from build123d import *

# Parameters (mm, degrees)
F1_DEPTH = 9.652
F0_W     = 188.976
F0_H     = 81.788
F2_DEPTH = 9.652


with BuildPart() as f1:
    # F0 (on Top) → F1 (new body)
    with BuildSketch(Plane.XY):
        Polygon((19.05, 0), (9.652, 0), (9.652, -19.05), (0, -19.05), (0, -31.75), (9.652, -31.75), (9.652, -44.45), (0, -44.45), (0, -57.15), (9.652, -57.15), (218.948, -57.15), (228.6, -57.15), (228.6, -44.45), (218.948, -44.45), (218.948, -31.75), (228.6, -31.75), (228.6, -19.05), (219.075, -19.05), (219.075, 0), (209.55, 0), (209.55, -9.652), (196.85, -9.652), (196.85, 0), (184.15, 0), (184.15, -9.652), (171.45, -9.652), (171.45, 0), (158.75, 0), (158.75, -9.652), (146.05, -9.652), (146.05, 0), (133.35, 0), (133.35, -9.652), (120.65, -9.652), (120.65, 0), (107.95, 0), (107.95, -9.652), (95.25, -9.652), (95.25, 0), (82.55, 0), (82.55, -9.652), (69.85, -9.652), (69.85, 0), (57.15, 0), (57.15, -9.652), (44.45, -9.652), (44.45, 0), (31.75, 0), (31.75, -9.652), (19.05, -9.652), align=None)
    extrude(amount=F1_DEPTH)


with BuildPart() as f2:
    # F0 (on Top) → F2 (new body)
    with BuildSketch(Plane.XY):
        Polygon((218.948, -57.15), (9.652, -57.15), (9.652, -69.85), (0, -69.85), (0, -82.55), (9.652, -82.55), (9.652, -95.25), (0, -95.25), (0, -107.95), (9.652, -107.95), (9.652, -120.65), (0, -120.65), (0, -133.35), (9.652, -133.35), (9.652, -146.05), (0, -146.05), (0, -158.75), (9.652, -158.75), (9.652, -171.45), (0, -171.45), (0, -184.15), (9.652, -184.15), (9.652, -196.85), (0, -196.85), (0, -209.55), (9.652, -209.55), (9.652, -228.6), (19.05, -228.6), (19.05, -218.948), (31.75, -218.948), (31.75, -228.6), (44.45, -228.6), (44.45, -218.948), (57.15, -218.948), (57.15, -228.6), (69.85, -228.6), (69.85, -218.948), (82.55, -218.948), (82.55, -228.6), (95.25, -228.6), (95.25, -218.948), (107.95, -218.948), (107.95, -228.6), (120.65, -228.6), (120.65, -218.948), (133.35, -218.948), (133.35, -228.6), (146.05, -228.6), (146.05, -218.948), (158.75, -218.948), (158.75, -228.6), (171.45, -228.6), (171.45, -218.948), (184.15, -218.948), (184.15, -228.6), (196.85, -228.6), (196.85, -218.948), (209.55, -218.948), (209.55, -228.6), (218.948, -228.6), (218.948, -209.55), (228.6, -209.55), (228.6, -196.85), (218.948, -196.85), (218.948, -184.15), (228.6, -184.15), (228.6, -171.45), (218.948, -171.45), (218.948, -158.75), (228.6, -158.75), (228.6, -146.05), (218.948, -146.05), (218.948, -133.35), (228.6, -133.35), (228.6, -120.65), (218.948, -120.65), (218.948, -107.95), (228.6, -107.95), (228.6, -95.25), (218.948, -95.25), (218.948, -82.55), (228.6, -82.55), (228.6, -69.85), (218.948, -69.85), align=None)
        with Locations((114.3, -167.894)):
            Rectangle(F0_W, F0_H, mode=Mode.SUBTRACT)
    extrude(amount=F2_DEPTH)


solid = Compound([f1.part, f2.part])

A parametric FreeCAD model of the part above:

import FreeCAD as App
import Part
import Sketcher
Q = App.Units.Quantity

doc = App.newDocument("Part")
params = doc.addObject("Spreadsheet::Sheet", "Params")
for row, (alias, value) in enumerate([
    ("sketch1_width", "9 in"),
    ("sketch1_width2", "0.5 in"),
    ("sketch1_width3", "0.37 in"),
    ("sketch1_width4", "0.38 in"),
    ("sketch1_height", "0.75 in"),
    ("pad1_length", "0.38 in"),
    ("sketch2_width", "0.5 in"),
    ("sketch2_width2", "8.24 in"),
    ("sketch2_width3", "7.44 in"),
    ("sketch2_height", "0.75 in"),
    ("sketch2_height2", "3.22 in"),
    ("pad2_length", "0.38 in"),
], start=1):
    params.set(f"A{row}", alias)
    params.set(f"B{row}", "=" + value)
    params.setAlias(f"B{row}", alias)

body = doc.addObject("PartDesign::Body", "Body")

# Sketch on XY plane
sketch1 = body.newObject("Sketcher::SketchObject", "Sketch")
sketch1.AttachmentSupport = (doc.getObject("XY_Plane"), [""])
sketch1.MapMode = "FlatFace"
sketch1.addGeometry(Part.LineSegment(App.Vector(19, 0, 0), App.Vector(10, 0, 0)), False)
sketch1.addGeometry(Part.LineSegment(App.Vector(10, 0, 0), App.Vector(10, -19, 0)), False)
sketch1.addGeometry(Part.LineSegment(App.Vector(10, -19, 0), App.Vector(0, -19, 0)), False)
sketch1.addGeometry(Part.LineSegment(App.Vector(0, -19, 0), App.Vector(0, -32, 0)), False)
sketch1.addGeometry(Part.LineSegment(App.Vector(0, -32, 0), App.Vector(10, -32, 0)), False)
sketch1.addGeometry(Part.LineSegment(App.Vector(10, -32, 0), App.Vector(10, -44, 0)), False)
sketch1.addGeometry(Part.LineSegment(App.Vector(10, -44, 0), App.Vector(0, -44, 0)), False)
sketch1.addGeometry(Part.LineSegment(App.Vector(0, -44, 0), App.Vector(0, -57, 0)), False)
sketch1.addGeometry(Part.LineSegment(App.Vector(0, -57, 0), App.Vector(229, -57, 0)), False)
sketch1.addGeometry(Part.LineSegment(App.Vector(229, -57, 0), App.Vector(229, -44, 0)), False)
sketch1.addGeometry(Part.LineSegment(App.Vector(229, -44, 0), App.Vector(219, -44, 0)), False)
sketch1.addGeometry(Part.LineSegment(App.Vector(219, -44, 0), App.Vector(219, -32, 0)), False)
sketch1.addGeometry(Part.LineSegment(App.Vector(219, -32, 0), App.Vector(229, -32, 0)), False)
sketch1.addGeometry(Part.LineSegment(App.Vector(229, -32, 0), App.Vector(229, -19, 0)), False)
sketch1.addGeometry(Part.LineSegment(App.Vector(229, -19, 0), App.Vector(219, -19, 0)), False)
sketch1.addGeometry(Part.LineSegment(App.Vector(219, -19, 0), App.Vector(219, 0, 0)), False)
sketch1.addGeometry(Part.LineSegment(App.Vector(219, 0, 0), App.Vector(210, 0, 0)), False)
sketch1.addGeometry(Part.LineSegment(App.Vector(210, 0, 0), App.Vector(210, -10, 0)), False)
sketch1.addGeometry(Part.LineSegment(App.Vector(210, -10, 0), App.Vector(197, -10, 0)), False)
sketch1.addGeometry(Part.LineSegment(App.Vector(197, -10, 0), App.Vector(197, 0, 0)), False)
sketch1.addGeometry(Part.LineSegment(App.Vector(197, 0, 0), App.Vector(184, 0, 0)), False)
sketch1.addGeometry(Part.LineSegment(App.Vector(184, 0, 0), App.Vector(184, -10, 0)), False)
sketch1.addGeometry(Part.LineSegment(App.Vector(184, -10, 0), App.Vector(171, -10, 0)), False)
sketch1.addGeometry(Part.LineSegment(App.Vector(171, -10, 0), App.Vector(171, 0, 0)), False)
sketch1.addGeometry(Part.LineSegment(App.Vector(171, 0, 0), App.Vector(159, 0, 0)), False)
sketch1.addGeometry(Part.LineSegment(App.Vector(159, 0, 0), App.Vector(159, -10, 0)), False)
sketch1.addGeometry(Part.LineSegment(App.Vector(159, -10, 0), App.Vector(146, -10, 0)), False)
sketch1.addGeometry(Part.LineSegment(App.Vector(146, -10, 0), App.Vector(146, 0, 0)), False)
sketch1.addGeometry(Part.LineSegment(App.Vector(146, 0, 0), App.Vector(133, 0, 0)), False)
sketch1.addGeometry(Part.LineSegment(App.Vector(133, 0, 0), App.Vector(133, -10, 0)), False)
sketch1.addGeometry(Part.LineSegment(App.Vector(133, -10, 0), App.Vector(121, -10, 0)), False)
sketch1.addGeometry(Part.LineSegment(App.Vector(121, -10, 0), App.Vector(121, 0, 0)), False)
sketch1.addGeometry(Part.LineSegment(App.Vector(121, 0, 0), App.Vector(108, 0, 0)), False)
sketch1.addGeometry(Part.LineSegment(App.Vector(108, 0, 0), App.Vector(108, -10, 0)), False)
sketch1.addGeometry(Part.LineSegment(App.Vector(108, -10, 0), App.Vector(95, -10, 0)), False)
sketch1.addGeometry(Part.LineSegment(App.Vector(95, -10, 0), App.Vector(95, 0, 0)), False)
sketch1.addGeometry(Part.LineSegment(App.Vector(95, 0, 0), App.Vector(83, 0, 0)), False)
sketch1.addGeometry(Part.LineSegment(App.Vector(83, 0, 0), App.Vector(83, -10, 0)), False)
sketch1.addGeometry(Part.LineSegment(App.Vector(83, -10, 0), App.Vector(70, -10, 0)), False)
sketch1.addGeometry(Part.LineSegment(App.Vector(70, -10, 0), App.Vector(70, 0, 0)), False)
sketch1.addGeometry(Part.LineSegment(App.Vector(70, 0, 0), App.Vector(57, 0, 0)), False)
sketch1.addGeometry(Part.LineSegment(App.Vector(57, 0, 0), App.Vector(57, -10, 0)), False)
sketch1.addGeometry(Part.LineSegment(App.Vector(57, -10, 0), App.Vector(44, -10, 0)), False)
sketch1.addGeometry(Part.LineSegment(App.Vector(44, -10, 0), App.Vector(44, 0, 0)), False)
sketch1.addGeometry(Part.LineSegment(App.Vector(44, 0, 0), App.Vector(32, 0, 0)), False)
sketch1.addGeometry(Part.LineSegment(App.Vector(32, 0, 0), App.Vector(32, -10, 0)), False)
sketch1.addGeometry(Part.LineSegment(App.Vector(32, -10, 0), App.Vector(19, -10, 0)), False)
sketch1.addGeometry(Part.LineSegment(App.Vector(19, -10, 0), App.Vector(19, 0, 0)), False)
sketch1.addConstraint(Sketcher.Constraint("Coincident", 0, 2, 1, 1))
sketch1.addConstraint(Sketcher.Constraint("Coincident", 1, 2, 2, 1))
sketch1.addConstraint(Sketcher.Constraint("Coincident", 2, 2, 3, 1))
sketch1.addConstraint(Sketcher.Constraint("Coincident", 3, 2, 4, 1))
sketch1.addConstraint(Sketcher.Constraint("Coincident", 4, 2, 5, 1))
sketch1.addConstraint(Sketcher.Constraint("Coincident", 5, 2, 6, 1))
sketch1.addConstraint(Sketcher.Constraint("Coincident", 6, 2, 7, 1))
sketch1.addConstraint(Sketcher.Constraint("Coincident", 7, 2, 8, 1))
sketch1.addConstraint(Sketcher.Constraint("Coincident", 8, 2, 9, 1))
sketch1.addConstraint(Sketcher.Constraint("Coincident", 9, 2, 10, 1))
sketch1.addConstraint(Sketcher.Constraint("Coincident", 10, 2, 11, 1))
sketch1.addConstraint(Sketcher.Constraint("Coincident", 11, 2, 12, 1))
sketch1.addConstraint(Sketcher.Constraint("Coincident", 12, 2, 13, 1))
sketch1.addConstraint(Sketcher.Constraint("Coincident", 13, 2, 14, 1))
sketch1.addConstraint(Sketcher.Constraint("Coincident", 14, 2, 15, 1))
sketch1.addConstraint(Sketcher.Constraint("Coincident", 15, 2, 16, 1))
sketch1.addConstraint(Sketcher.Constraint("Coincident", 16, 2, 17, 1))
sketch1.addConstraint(Sketcher.Constraint("Coincident", 17, 2, 18, 1))
sketch1.addConstraint(Sketcher.Constraint("Coincident", 18, 2, 19, 1))
sketch1.addConstraint(Sketcher.Constraint("Coincident", 19, 2, 20, 1))
sketch1.addConstraint(Sketcher.Constraint("Coincident", 20, 2, 21, 1))
sketch1.addConstraint(Sketcher.Constraint("Coincident", 21, 2, 22, 1))
sketch1.addConstraint(Sketcher.Constraint("Coincident", 22, 2, 23, 1))
sketch1.addConstraint(Sketcher.Constraint("Coincident", 23, 2, 24, 1))
sketch1.addConstraint(Sketcher.Constraint("Coincident", 24, 2, 25, 1))
sketch1.addConstraint(Sketcher.Constraint("Coincident", 25, 2, 26, 1))
sketch1.addConstraint(Sketcher.Constraint("Coincident", 26, 2, 27, 1))
sketch1.addConstraint(Sketcher.Constraint("Coincident", 27, 2, 28, 1))
sketch1.addConstraint(Sketcher.Constraint("Coincident", 28, 2, 29, 1))
sketch1.addConstraint(Sketcher.Constraint("Coincident", 29, 2, 30, 1))
sketch1.addConstraint(Sketcher.Constraint("Coincident", 30, 2, 31, 1))
sketch1.addConstraint(Sketcher.Constraint("Coincident", 31, 2, 32, 1))
sketch1.addConstraint(Sketcher.Constraint("Coincident", 32, 2, 33, 1))
sketch1.addConstraint(Sketcher.Constraint("Coincident", 33, 2, 34, 1))
sketch1.addConstraint(Sketcher.Constraint("Coincident", 34, 2, 35, 1))
sketch1.addConstraint(Sketcher.Constraint("Coincident", 35, 2, 36, 1))
sketch1.addConstraint(Sketcher.Constraint("Coincident", 36, 2, 37, 1))
sketch1.addConstraint(Sketcher.Constraint("Coincident", 37, 2, 38, 1))
sketch1.addConstraint(Sketcher.Constraint("Coincident", 38, 2, 39, 1))
sketch1.addConstraint(Sketcher.Constraint("Coincident", 39, 2, 40, 1))
sketch1.addConstraint(Sketcher.Constraint("Coincident", 40, 2, 41, 1))
sketch1.addConstraint(Sketcher.Constraint("Coincident", 41, 2, 42, 1))
sketch1.addConstraint(Sketcher.Constraint("Coincident", 42, 2, 43, 1))
sketch1.addConstraint(Sketcher.Constraint("Coincident", 43, 2, 44, 1))
sketch1.addConstraint(Sketcher.Constraint("Coincident", 44, 2, 45, 1))
sketch1.addConstraint(Sketcher.Constraint("Coincident", 45, 2, 46, 1))
sketch1.addConstraint(Sketcher.Constraint("Coincident", 46, 2, 47, 1))
sketch1.addConstraint(Sketcher.Constraint("Coincident", 47, 2, 0, 1))
sketch1.addConstraint(Sketcher.Constraint("Horizontal", 0))
sketch1.addConstraint(Sketcher.Constraint("Vertical", 1))
sketch1.addConstraint(Sketcher.Constraint("Horizontal", 2))
sketch1.addConstraint(Sketcher.Constraint("Vertical", 3))
sketch1.addConstraint(Sketcher.Constraint("Horizontal", 4))
sketch1.addConstraint(Sketcher.Constraint("Vertical", 5))
sketch1.addConstraint(Sketcher.Constraint("Horizontal", 6))
sketch1.addConstraint(Sketcher.Constraint("Vertical", 7))
sketch1.addConstraint(Sketcher.Constraint("Horizontal", 8))
sketch1.addConstraint(Sketcher.Constraint("Vertical", 9))
sketch1.addConstraint(Sketcher.Constraint("Horizontal", 10))
sketch1.addConstraint(Sketcher.Constraint("Vertical", 11))
sketch1.addConstraint(Sketcher.Constraint("Horizontal", 12))
sketch1.addConstraint(Sketcher.Constraint("Vertical", 13))
sketch1.addConstraint(Sketcher.Constraint("Horizontal", 14))
sketch1.addConstraint(Sketcher.Constraint("Vertical", 15))
sketch1.addConstraint(Sketcher.Constraint("Horizontal", 16))
sketch1.addConstraint(Sketcher.Constraint("Vertical", 17))
sketch1.addConstraint(Sketcher.Constraint("Horizontal", 18))
sketch1.addConstraint(Sketcher.Constraint("Vertical", 19))
sketch1.addConstraint(Sketcher.Constraint("Horizontal", 20))
sketch1.addConstraint(Sketcher.Constraint("Vertical", 21))
sketch1.addConstraint(Sketcher.Constraint("Horizontal", 22))
sketch1.addConstraint(Sketcher.Constraint("Vertical", 23))
sketch1.addConstraint(Sketcher.Constraint("Horizontal", 24))
sketch1.addConstraint(Sketcher.Constraint("Vertical", 25))
sketch1.addConstraint(Sketcher.Constraint("Horizontal", 26))
sketch1.addConstraint(Sketcher.Constraint("Vertical", 27))
sketch1.addConstraint(Sketcher.Constraint("Horizontal", 28))
sketch1.addConstraint(Sketcher.Constraint("Vertical", 29))
sketch1.addConstraint(Sketcher.Constraint("Horizontal", 30))
sketch1.addConstraint(Sketcher.Constraint("Vertical", 31))
sketch1.addConstraint(Sketcher.Constraint("Horizontal", 32))
sketch1.addConstraint(Sketcher.Constraint("Vertical", 33))
sketch1.addConstraint(Sketcher.Constraint("Horizontal", 34))
sketch1.addConstraint(Sketcher.Constraint("Vertical", 35))
sketch1.addConstraint(Sketcher.Constraint("Horizontal", 36))
sketch1.addConstraint(Sketcher.Constraint("Vertical", 37))
sketch1.addConstraint(Sketcher.Constraint("Horizontal", 38))
sketch1.addConstraint(Sketcher.Constraint("Vertical", 39))
sketch1.addConstraint(Sketcher.Constraint("Horizontal", 40))
sketch1.addConstraint(Sketcher.Constraint("Vertical", 41))
sketch1.addConstraint(Sketcher.Constraint("Horizontal", 42))
sketch1.addConstraint(Sketcher.Constraint("Vertical", 43))
sketch1.addConstraint(Sketcher.Constraint("Horizontal", 44))
sketch1.addConstraint(Sketcher.Constraint("Vertical", 45))
sketch1.addConstraint(Sketcher.Constraint("Horizontal", 46))
sketch1.addConstraint(Sketcher.Constraint("Vertical", 47))
sketch1.addConstraint(Sketcher.Constraint("PointOnObject", 0, 2, -1))
sketch1.addConstraint(Sketcher.Constraint("PointOnObject", 2, 2, -2))
sketch1.addConstraint(Sketcher.Constraint("PointOnObject", 6, 2, -2))
sketch1.addConstraint(Sketcher.Constraint("PointOnObject", 15, 2, -1))
sketch1.addConstraint(Sketcher.Constraint("PointOnObject", 19, 2, -1))
sketch1.addConstraint(Sketcher.Constraint("PointOnObject", 23, 2, -1))
sketch1.addConstraint(Sketcher.Constraint("PointOnObject", 27, 2, -1))
sketch1.addConstraint(Sketcher.Constraint("PointOnObject", 31, 2, -1))
sketch1.addConstraint(Sketcher.Constraint("PointOnObject", 35, 2, -1))
sketch1.addConstraint(Sketcher.Constraint("PointOnObject", 39, 2, -1))
sketch1.addConstraint(Sketcher.Constraint("PointOnObject", 43, 2, -1))
sketch1.addConstraint(Sketcher.Constraint("Horizontal", 6, 2, 9, 2))
sketch1.addConstraint(Sketcher.Constraint("Horizontal", 4, 2, 11, 2))
sketch1.addConstraint(Sketcher.Constraint("Horizontal", 2, 2, 13, 2))
sketch1.addConstraint(Sketcher.Constraint("Horizontal", 18, 2, 21, 2))
sketch1.addConstraint(Sketcher.Constraint("Horizontal", 22, 2, 25, 2))
sketch1.addConstraint(Sketcher.Constraint("Horizontal", 26, 2, 29, 2))
sketch1.addConstraint(Sketcher.Constraint("Horizontal", 30, 2, 33, 2))
sketch1.addConstraint(Sketcher.Constraint("Horizontal", 34, 2, 37, 2))
sketch1.addConstraint(Sketcher.Constraint("Horizontal", 38, 2, 41, 2))
sketch1.addConstraint(Sketcher.Constraint("Horizontal", 42, 2, 45, 2))
sketch1.addConstraint(Sketcher.Constraint("Vertical", 1, 2, 4, 2))
sketch1.addConstraint(Sketcher.Constraint("Vertical", 9, 2, 12, 2))
sketch1.addConstraint(Sketcher.Constraint("Equal", 6, 10))
sketch1.addConstraint(Sketcher.Constraint("Equal", 14, 16))
sketch1.addConstraint(Sketcher.Constraint("Equal", 18, 20))
sketch1.addConstraint(Sketcher.Constraint("Equal", 20, 22))
sketch1.addConstraint(Sketcher.Constraint("Equal", 22, 24))
sketch1.addConstraint(Sketcher.Constraint("Equal", 24, 26))
sketch1.addConstraint(Sketcher.Constraint("Equal", 26, 28))
sketch1.addConstraint(Sketcher.Constraint("Equal", 28, 30))
sketch1.addConstraint(Sketcher.Constraint("Equal", 30, 32))
sketch1.addConstraint(Sketcher.Constraint("Equal", 32, 34))
sketch1.addConstraint(Sketcher.Constraint("Equal", 34, 36))
sketch1.addConstraint(Sketcher.Constraint("Equal", 36, 38))
sketch1.addConstraint(Sketcher.Constraint("Equal", 38, 40))
sketch1.addConstraint(Sketcher.Constraint("Equal", 40, 42))
sketch1.addConstraint(Sketcher.Constraint("Equal", 42, 44))
sketch1.addConstraint(Sketcher.Constraint("Equal", 44, 46))
sketch1.addConstraint(Sketcher.Constraint("Equal", 46, 3))
sketch1.addConstraint(Sketcher.Constraint("Equal", 3, 5))
sketch1.addConstraint(Sketcher.Constraint("Equal", 5, 7))
sketch1.addConstraint(Sketcher.Constraint("Equal", 12, 17))
sketch1.addConstraint(Sketcher.Constraint("DistanceX", 8, 1, 8, 2, Q("9 in")))
sketch1.addConstraint(Sketcher.Constraint("DistanceX", 18, 2, 18, 1, Q("0.5 in")))
sketch1.addConstraint(Sketcher.Constraint("DistanceX", 0, 2, 0, 1, Q("0.37 in")))
sketch1.addConstraint(Sketcher.Constraint("DistanceX", 2, 2, 2, 1, Q("0.38 in")))
sketch1.addConstraint(Sketcher.Constraint("DistanceY", 1, 2, 1, 1, Q("0.75 in")))
sketch1.setExpression("Constraints[139]", "Params.sketch1_width")
sketch1.setExpression("Constraints[140]", "Params.sketch1_width2")
sketch1.setExpression("Constraints[141]", "Params.sketch1_width3")
sketch1.setExpression("Constraints[142]", "Params.sketch1_width4")
sketch1.setExpression("Constraints[143]", "Params.sketch1_height")
pad1 = body.newObject("PartDesign::Pad", "Pad")
pad1.Profile = sketch1
pad1.setExpression("Length", "Params.pad1_length")
body2 = doc.addObject("PartDesign::Body", "Body001")

# Sketch on XY plane
sketch2 = body2.newObject("Sketcher::SketchObject", "Sketch001")
sketch2.AttachmentSupport = (doc.getObject("XY_Plane001"), [""])
sketch2.MapMode = "FlatFace"
sketch2.addGeometry(Part.LineSegment(App.Vector(219, -57, 0), App.Vector(10, -57, 0)), False)
sketch2.addGeometry(Part.LineSegment(App.Vector(10, -57, 0), App.Vector(10, -70, 0)), False)
sketch2.addGeometry(Part.LineSegment(App.Vector(10, -70, 0), App.Vector(0, -70, 0)), False)
sketch2.addGeometry(Part.LineSegment(App.Vector(0, -70, 0), App.Vector(0, -83, 0)), False)
sketch2.addGeometry(Part.LineSegment(App.Vector(0, -83, 0), App.Vector(10, -83, 0)), False)
sketch2.addGeometry(Part.LineSegment(App.Vector(10, -83, 0), App.Vector(10, -95, 0)), False)
sketch2.addGeometry(Part.LineSegment(App.Vector(10, -95, 0), App.Vector(0, -95, 0)), False)
sketch2.addGeometry(Part.LineSegment(App.Vector(0, -95, 0), App.Vector(0, -108, 0)), False)
sketch2.addGeometry(Part.LineSegment(App.Vector(0, -108, 0), App.Vector(10, -108, 0)), False)
sketch2.addGeometry(Part.LineSegment(App.Vector(10, -108, 0), App.Vector(10, -121, 0)), False)
sketch2.addGeometry(Part.LineSegment(App.Vector(10, -121, 0), App.Vector(0, -121, 0)), False)
sketch2.addGeometry(Part.LineSegment(App.Vector(0, -121, 0), App.Vector(0, -133, 0)), False)
sketch2.addGeometry(Part.LineSegment(App.Vector(0, -133, 0), App.Vector(10, -133, 0)), False)
sketch2.addGeometry(Part.LineSegment(App.Vector(10, -133, 0), App.Vector(10, -146, 0)), False)
sketch2.addGeometry(Part.LineSegment(App.Vector(10, -146, 0), App.Vector(0, -146, 0)), False)
sketch2.addGeometry(Part.LineSegment(App.Vector(0, -146, 0), App.Vector(0, -159, 0)), False)
sketch2.addGeometry(Part.LineSegment(App.Vector(0, -159, 0), App.Vector(10, -159, 0)), False)
sketch2.addGeometry(Part.LineSegment(App.Vector(10, -159, 0), App.Vector(10, -171, 0)), False)
sketch2.addGeometry(Part.LineSegment(App.Vector(10, -171, 0), App.Vector(0, -171, 0)), False)
sketch2.addGeometry(Part.LineSegment(App.Vector(0, -171, 0), App.Vector(0, -184, 0)), False)
sketch2.addGeometry(Part.LineSegment(App.Vector(0, -184, 0), App.Vector(10, -184, 0)), False)
sketch2.addGeometry(Part.LineSegment(App.Vector(10, -184, 0), App.Vector(10, -197, 0)), False)
sketch2.addGeometry(Part.LineSegment(App.Vector(10, -197, 0), App.Vector(0, -197, 0)), False)
sketch2.addGeometry(Part.LineSegment(App.Vector(0, -197, 0), App.Vector(0, -210, 0)), False)
sketch2.addGeometry(Part.LineSegment(App.Vector(0, -210, 0), App.Vector(10, -210, 0)), False)
sketch2.addGeometry(Part.LineSegment(App.Vector(10, -210, 0), App.Vector(10, -229, 0)), False)
sketch2.addGeometry(Part.LineSegment(App.Vector(10, -229, 0), App.Vector(19, -229, 0)), False)
sketch2.addGeometry(Part.LineSegment(App.Vector(19, -229, 0), App.Vector(19, -219, 0)), False)
sketch2.addGeometry(Part.LineSegment(App.Vector(19, -219, 0), App.Vector(32, -219, 0)), False)
sketch2.addGeometry(Part.LineSegment(App.Vector(32, -219, 0), App.Vector(32, -229, 0)), False)
sketch2.addGeometry(Part.LineSegment(App.Vector(32, -229, 0), App.Vector(44, -229, 0)), False)
sketch2.addGeometry(Part.LineSegment(App.Vector(44, -229, 0), App.Vector(44, -219, 0)), False)
sketch2.addGeometry(Part.LineSegment(App.Vector(44, -219, 0), App.Vector(57, -219, 0)), False)
sketch2.addGeometry(Part.LineSegment(App.Vector(57, -219, 0), App.Vector(57, -229, 0)), False)
sketch2.addGeometry(Part.LineSegment(App.Vector(57, -229, 0), App.Vector(70, -229, 0)), False)
sketch2.addGeometry(Part.LineSegment(App.Vector(70, -229, 0), App.Vector(70, -219, 0)), False)
sketch2.addGeometry(Part.LineSegment(App.Vector(70, -219, 0), App.Vector(83, -219, 0)), False)
sketch2.addGeometry(Part.LineSegment(App.Vector(83, -219, 0), App.Vector(83, -229, 0)), False)
sketch2.addGeometry(Part.LineSegment(App.Vector(83, -229, 0), App.Vector(95, -229, 0)), False)
sketch2.addGeometry(Part.LineSegment(App.Vector(95, -229, 0), App.Vector(95, -219, 0)), False)
sketch2.addGeometry(Part.LineSegment(App.Vector(95, -219, 0), App.Vector(108, -219, 0)), False)
sketch2.addGeometry(Part.LineSegment(App.Vector(108, -219, 0), App.Vector(108, -229, 0)), False)
sketch2.addGeometry(Part.LineSegment(App.Vector(108, -229, 0), App.Vector(121, -229, 0)), False)
sketch2.addGeometry(Part.LineSegment(App.Vector(121, -229, 0), App.Vector(121, -219, 0)), False)
sketch2.addGeometry(Part.LineSegment(App.Vector(121, -219, 0), App.Vector(133, -219, 0)), False)
sketch2.addGeometry(Part.LineSegment(App.Vector(133, -219, 0), App.Vector(133, -229, 0)), False)
sketch2.addGeometry(Part.LineSegment(App.Vector(133, -229, 0), App.Vector(146, -229, 0)), False)
sketch2.addGeometry(Part.LineSegment(App.Vector(146, -229, 0), App.Vector(146, -219, 0)), False)
sketch2.addGeometry(Part.LineSegment(App.Vector(146, -219, 0), App.Vector(159, -219, 0)), False)
sketch2.addGeometry(Part.LineSegment(App.Vector(159, -219, 0), App.Vector(159, -229, 0)), False)
sketch2.addGeometry(Part.LineSegment(App.Vector(159, -229, 0), App.Vector(171, -229, 0)), False)
sketch2.addGeometry(Part.LineSegment(App.Vector(171, -229, 0), App.Vector(171, -219, 0)), False)
sketch2.addGeometry(Part.LineSegment(App.Vector(171, -219, 0), App.Vector(184, -219, 0)), False)
sketch2.addGeometry(Part.LineSegment(App.Vector(184, -219, 0), App.Vector(184, -229, 0)), False)
sketch2.addGeometry(Part.LineSegment(App.Vector(184, -229, 0), App.Vector(197, -229, 0)), False)
sketch2.addGeometry(Part.LineSegment(App.Vector(197, -229, 0), App.Vector(197, -219, 0)), False)
sketch2.addGeometry(Part.LineSegment(App.Vector(197, -219, 0), App.Vector(210, -219, 0)), False)
sketch2.addGeometry(Part.LineSegment(App.Vector(210, -219, 0), App.Vector(210, -229, 0)), False)
sketch2.addGeometry(Part.LineSegment(App.Vector(210, -229, 0), App.Vector(219, -229, 0)), False)
sketch2.addGeometry(Part.LineSegment(App.Vector(219, -229, 0), App.Vector(219, -210, 0)), False)
sketch2.addGeometry(Part.LineSegment(App.Vector(219, -210, 0), App.Vector(229, -210, 0)), False)
sketch2.addGeometry(Part.LineSegment(App.Vector(229, -210, 0), App.Vector(229, -197, 0)), False)
sketch2.addGeometry(Part.LineSegment(App.Vector(229, -197, 0), App.Vector(219, -197, 0)), False)
sketch2.addGeometry(Part.LineSegment(App.Vector(219, -197, 0), App.Vector(219, -184, 0)), False)
sketch2.addGeometry(Part.LineSegment(App.Vector(219, -184, 0), App.Vector(229, -184, 0)), False)
sketch2.addGeometry(Part.LineSegment(App.Vector(229, -184, 0), App.Vector(229, -171, 0)), False)
sketch2.addGeometry(Part.LineSegment(App.Vector(229, -171, 0), App.Vector(219, -171, 0)), False)
sketch2.addGeometry(Part.LineSegment(App.Vector(219, -171, 0), App.Vector(219, -159, 0)), False)
sketch2.addGeometry(Part.LineSegment(App.Vector(219, -159, 0), App.Vector(229, -159, 0)), False)
sketch2.addGeometry(Part.LineSegment(App.Vector(229, -159, 0), App.Vector(229, -146, 0)), False)
sketch2.addGeometry(Part.LineSegment(App.Vector(229, -146, 0), App.Vector(219, -146, 0)), False)
sketch2.addGeometry(Part.LineSegment(App.Vector(219, -146, 0), App.Vector(219, -133, 0)), False)
sketch2.addGeometry(Part.LineSegment(App.Vector(219, -133, 0), App.Vector(229, -133, 0)), False)
sketch2.addGeometry(Part.LineSegment(App.Vector(229, -133, 0), App.Vector(229, -121, 0)), False)
sketch2.addGeometry(Part.LineSegment(App.Vector(229, -121, 0), App.Vector(219, -121, 0)), False)
sketch2.addGeometry(Part.LineSegment(App.Vector(219, -121, 0), App.Vector(219, -108, 0)), False)
sketch2.addGeometry(Part.LineSegment(App.Vector(219, -108, 0), App.Vector(229, -108, 0)), False)
sketch2.addGeometry(Part.LineSegment(App.Vector(229, -108, 0), App.Vector(229, -95, 0)), False)
sketch2.addGeometry(Part.LineSegment(App.Vector(229, -95, 0), App.Vector(219, -95, 0)), False)
sketch2.addGeometry(Part.LineSegment(App.Vector(219, -95, 0), App.Vector(219, -83, 0)), False)
sketch2.addGeometry(Part.LineSegment(App.Vector(219, -83, 0), App.Vector(229, -83, 0)), False)
sketch2.addGeometry(Part.LineSegment(App.Vector(229, -83, 0), App.Vector(229, -70, 0)), False)
sketch2.addGeometry(Part.LineSegment(App.Vector(229, -70, 0), App.Vector(219, -70, 0)), False)
sketch2.addGeometry(Part.LineSegment(App.Vector(219, -70, 0), App.Vector(219, -57, 0)), False)
sketch2.addGeometry(Part.LineSegment(App.Vector(209, -209, 0), App.Vector(20, -209, 0)), False)
sketch2.addGeometry(Part.LineSegment(App.Vector(20, -209, 0), App.Vector(20, -127, 0)), False)
sketch2.addGeometry(Part.LineSegment(App.Vector(20, -127, 0), App.Vector(209, -127, 0)), False)
sketch2.addGeometry(Part.LineSegment(App.Vector(209, -127, 0), App.Vector(209, -209, 0)), False)
sketch2.addConstraint(Sketcher.Constraint("Coincident", 0, 2, 1, 1))
sketch2.addConstraint(Sketcher.Constraint("Coincident", 1, 2, 2, 1))
sketch2.addConstraint(Sketcher.Constraint("Coincident", 2, 2, 3, 1))
sketch2.addConstraint(Sketcher.Constraint("Coincident", 3, 2, 4, 1))
sketch2.addConstraint(Sketcher.Constraint("Coincident", 4, 2, 5, 1))
sketch2.addConstraint(Sketcher.Constraint("Coincident", 5, 2, 6, 1))
sketch2.addConstraint(Sketcher.Constraint("Coincident", 6, 2, 7, 1))
sketch2.addConstraint(Sketcher.Constraint("Coincident", 7, 2, 8, 1))
sketch2.addConstraint(Sketcher.Constraint("Coincident", 8, 2, 9, 1))
sketch2.addConstraint(Sketcher.Constraint("Coincident", 9, 2, 10, 1))
sketch2.addConstraint(Sketcher.Constraint("Coincident", 10, 2, 11, 1))
sketch2.addConstraint(Sketcher.Constraint("Coincident", 11, 2, 12, 1))
sketch2.addConstraint(Sketcher.Constraint("Coincident", 12, 2, 13, 1))
sketch2.addConstraint(Sketcher.Constraint("Coincident", 13, 2, 14, 1))
sketch2.addConstraint(Sketcher.Constraint("Coincident", 14, 2, 15, 1))
sketch2.addConstraint(Sketcher.Constraint("Coincident", 15, 2, 16, 1))
sketch2.addConstraint(Sketcher.Constraint("Coincident", 16, 2, 17, 1))
sketch2.addConstraint(Sketcher.Constraint("Coincident", 17, 2, 18, 1))
sketch2.addConstraint(Sketcher.Constraint("Coincident", 18, 2, 19, 1))
sketch2.addConstraint(Sketcher.Constraint("Coincident", 19, 2, 20, 1))
sketch2.addConstraint(Sketcher.Constraint("Coincident", 20, 2, 21, 1))
sketch2.addConstraint(Sketcher.Constraint("Coincident", 21, 2, 22, 1))
sketch2.addConstraint(Sketcher.Constraint("Coincident", 22, 2, 23, 1))
sketch2.addConstraint(Sketcher.Constraint("Coincident", 23, 2, 24, 1))
sketch2.addConstraint(Sketcher.Constraint("Coincident", 24, 2, 25, 1))
sketch2.addConstraint(Sketcher.Constraint("Coincident", 25, 2, 26, 1))
sketch2.addConstraint(Sketcher.Constraint("Coincident", 26, 2, 27, 1))
sketch2.addConstraint(Sketcher.Constraint("Coincident", 27, 2, 28, 1))
sketch2.addConstraint(Sketcher.Constraint("Coincident", 28, 2, 29, 1))
sketch2.addConstraint(Sketcher.Constraint("Coincident", 29, 2, 30, 1))
sketch2.addConstraint(Sketcher.Constraint("Coincident", 30, 2, 31, 1))
sketch2.addConstraint(Sketcher.Constraint("Coincident", 31, 2, 32, 1))
sketch2.addConstraint(Sketcher.Constraint("Coincident", 32, 2, 33, 1))
sketch2.addConstraint(Sketcher.Constraint("Coincident", 33, 2, 34, 1))
sketch2.addConstraint(Sketcher.Constraint("Coincident", 34, 2, 35, 1))
sketch2.addConstraint(Sketcher.Constraint("Coincident", 35, 2, 36, 1))
sketch2.addConstraint(Sketcher.Constraint("Coincident", 36, 2, 37, 1))
sketch2.addConstraint(Sketcher.Constraint("Coincident", 37, 2, 38, 1))
sketch2.addConstraint(Sketcher.Constraint("Coincident", 38, 2, 39, 1))
sketch2.addConstraint(Sketcher.Constraint("Coincident", 39, 2, 40, 1))
sketch2.addConstraint(Sketcher.Constraint("Coincident", 40, 2, 41, 1))
sketch2.addConstraint(Sketcher.Constraint("Coincident", 41, 2, 42, 1))
sketch2.addConstraint(Sketcher.Constraint("Coincident", 42, 2, 43, 1))
sketch2.addConstraint(Sketcher.Constraint("Coincident", 43, 2, 44, 1))
sketch2.addConstraint(Sketcher.Constraint("Coincident", 44, 2, 45, 1))
sketch2.addConstraint(Sketcher.Constraint("Coincident", 45, 2, 46, 1))
sketch2.addConstraint(Sketcher.Constraint("Coincident", 46, 2, 47, 1))
sketch2.addConstraint(Sketcher.Constraint("Coincident", 47, 2, 48, 1))
sketch2.addConstraint(Sketcher.Constraint("Coincident", 48, 2, 49, 1))
sketch2.addConstraint(Sketcher.Constraint("Coincident", 49, 2, 50, 1))
sketch2.addConstraint(Sketcher.Constraint("Coincident", 50, 2, 51, 1))
sketch2.addConstraint(Sketcher.Constraint("Coincident", 51, 2, 52, 1))
sketch2.addConstraint(Sketcher.Constraint("Coincident", 52, 2, 53, 1))
sketch2.addConstraint(Sketcher.Constraint("Coincident", 53, 2, 54, 1))
sketch2.addConstraint(Sketcher.Constraint("Coincident", 54, 2, 55, 1))
sketch2.addConstraint(Sketcher.Constraint("Coincident", 55, 2, 56, 1))
sketch2.addConstraint(Sketcher.Constraint("Coincident", 56, 2, 57, 1))
sketch2.addConstraint(Sketcher.Constraint("Coincident", 57, 2, 58, 1))
sketch2.addConstraint(Sketcher.Constraint("Coincident", 58, 2, 59, 1))
sketch2.addConstraint(Sketcher.Constraint("Coincident", 59, 2, 60, 1))
sketch2.addConstraint(Sketcher.Constraint("Coincident", 60, 2, 61, 1))
sketch2.addConstraint(Sketcher.Constraint("Coincident", 61, 2, 62, 1))
sketch2.addConstraint(Sketcher.Constraint("Coincident", 62, 2, 63, 1))
sketch2.addConstraint(Sketcher.Constraint("Coincident", 63, 2, 64, 1))
sketch2.addConstraint(Sketcher.Constraint("Coincident", 64, 2, 65, 1))
sketch2.addConstraint(Sketcher.Constraint("Coincident", 65, 2, 66, 1))
sketch2.addConstraint(Sketcher.Constraint("Coincident", 66, 2, 67, 1))
sketch2.addConstraint(Sketcher.Constraint("Coincident", 67, 2, 68, 1))
sketch2.addConstraint(Sketcher.Constraint("Coincident", 68, 2, 69, 1))
sketch2.addConstraint(Sketcher.Constraint("Coincident", 69, 2, 70, 1))
sketch2.addConstraint(Sketcher.Constraint("Coincident", 70, 2, 71, 1))
sketch2.addConstraint(Sketcher.Constraint("Coincident", 71, 2, 72, 1))
sketch2.addConstraint(Sketcher.Constraint("Coincident", 72, 2, 73, 1))
sketch2.addConstraint(Sketcher.Constraint("Coincident", 73, 2, 74, 1))
sketch2.addConstraint(Sketcher.Constraint("Coincident", 74, 2, 75, 1))
sketch2.addConstraint(Sketcher.Constraint("Coincident", 75, 2, 76, 1))
sketch2.addConstraint(Sketcher.Constraint("Coincident", 76, 2, 77, 1))
sketch2.addConstraint(Sketcher.Constraint("Coincident", 77, 2, 78, 1))
sketch2.addConstraint(Sketcher.Constraint("Coincident", 78, 2, 79, 1))
sketch2.addConstraint(Sketcher.Constraint("Coincident", 79, 2, 80, 1))
sketch2.addConstraint(Sketcher.Constraint("Coincident", 80, 2, 81, 1))
sketch2.addConstraint(Sketcher.Constraint("Coincident", 81, 2, 82, 1))
sketch2.addConstraint(Sketcher.Constraint("Coincident", 82, 2, 83, 1))
sketch2.addConstraint(Sketcher.Constraint("Coincident", 83, 2, 0, 1))
sketch2.addConstraint(Sketcher.Constraint("Coincident", 84, 2, 85, 1))
sketch2.addConstraint(Sketcher.Constraint("Coincident", 85, 2, 86, 1))
sketch2.addConstraint(Sketcher.Constraint("Coincident", 86, 2, 87, 1))
sketch2.addConstraint(Sketcher.Constraint("Coincident", 87, 2, 84, 1))
sketch2.addConstraint(Sketcher.Constraint("Horizontal", 0))
sketch2.addConstraint(Sketcher.Constraint("Vertical", 1))
sketch2.addConstraint(Sketcher.Constraint("Horizontal", 2))
sketch2.addConstraint(Sketcher.Constraint("Vertical", 3))
sketch2.addConstraint(Sketcher.Constraint("Horizontal", 4))
sketch2.addConstraint(Sketcher.Constraint("Vertical", 5))
sketch2.addConstraint(Sketcher.Constraint("Horizontal", 6))
sketch2.addConstraint(Sketcher.Constraint("Vertical", 7))
sketch2.addConstraint(Sketcher.Constraint("Horizontal", 8))
sketch2.addConstraint(Sketcher.Constraint("Vertical", 9))
sketch2.addConstraint(Sketcher.Constraint("Horizontal", 10))
sketch2.addConstraint(Sketcher.Constraint("Vertical", 11))
sketch2.addConstraint(Sketcher.Constraint("Horizontal", 12))
sketch2.addConstraint(Sketcher.Constraint("Vertical", 13))
sketch2.addConstraint(Sketcher.Constraint("Horizontal", 14))
sketch2.addConstraint(Sketcher.Constraint("Vertical", 15))
sketch2.addConstraint(Sketcher.Constraint("Horizontal", 16))
sketch2.addConstraint(Sketcher.Constraint("Vertical", 17))
sketch2.addConstraint(Sketcher.Constraint("Horizontal", 18))
sketch2.addConstraint(Sketcher.Constraint("Vertical", 19))
sketch2.addConstraint(Sketcher.Constraint("Horizontal", 20))
sketch2.addConstraint(Sketcher.Constraint("Vertical", 21))
sketch2.addConstraint(Sketcher.Constraint("Horizontal", 22))
sketch2.addConstraint(Sketcher.Constraint("Vertical", 23))
sketch2.addConstraint(Sketcher.Constraint("Horizontal", 24))
sketch2.addConstraint(Sketcher.Constraint("Vertical", 25))
sketch2.addConstraint(Sketcher.Constraint("Horizontal", 26))
sketch2.addConstraint(Sketcher.Constraint("Vertical", 27))
sketch2.addConstraint(Sketcher.Constraint("Horizontal", 28))
sketch2.addConstraint(Sketcher.Constraint("Vertical", 29))
sketch2.addConstraint(Sketcher.Constraint("Horizontal", 30))
sketch2.addConstraint(Sketcher.Constraint("Vertical", 31))
sketch2.addConstraint(Sketcher.Constraint("Horizontal", 32))
sketch2.addConstraint(Sketcher.Constraint("Vertical", 33))
sketch2.addConstraint(Sketcher.Constraint("Horizontal", 34))
sketch2.addConstraint(Sketcher.Constraint("Vertical", 35))
sketch2.addConstraint(Sketcher.Constraint("Horizontal", 36))
sketch2.addConstraint(Sketcher.Constraint("Vertical", 37))
sketch2.addConstraint(Sketcher.Constraint("Horizontal", 38))
sketch2.addConstraint(Sketcher.Constraint("Vertical", 39))
sketch2.addConstraint(Sketcher.Constraint("Horizontal", 40))
sketch2.addConstraint(Sketcher.Constraint("Vertical", 41))
sketch2.addConstraint(Sketcher.Constraint("Horizontal", 42))
sketch2.addConstraint(Sketcher.Constraint("Vertical", 43))
sketch2.addConstraint(Sketcher.Constraint("Horizontal", 44))
sketch2.addConstraint(Sketcher.Constraint("Vertical", 45))
sketch2.addConstraint(Sketcher.Constraint("Horizontal", 46))
sketch2.addConstraint(Sketcher.Constraint("Vertical", 47))
sketch2.addConstraint(Sketcher.Constraint("Horizontal", 48))
sketch2.addConstraint(Sketcher.Constraint("Vertical", 49))
sketch2.addConstraint(Sketcher.Constraint("Horizontal", 50))
sketch2.addConstraint(Sketcher.Constraint("Vertical", 51))
sketch2.addConstraint(Sketcher.Constraint("Horizontal", 52))
sketch2.addConstraint(Sketcher.Constraint("Vertical", 53))
sketch2.addConstraint(Sketcher.Constraint("Horizontal", 54))
sketch2.addConstraint(Sketcher.Constraint("Vertical", 55))
sketch2.addConstraint(Sketcher.Constraint("Horizontal", 56))
sketch2.addConstraint(Sketcher.Constraint("Vertical", 57))
sketch2.addConstraint(Sketcher.Constraint("Horizontal", 58))
sketch2.addConstraint(Sketcher.Constraint("Vertical", 59))
sketch2.addConstraint(Sketcher.Constraint("Horizontal", 60))
sketch2.addConstraint(Sketcher.Constraint("Vertical", 61))
sketch2.addConstraint(Sketcher.Constraint("Horizontal", 62))
sketch2.addConstraint(Sketcher.Constraint("Vertical", 63))
sketch2.addConstraint(Sketcher.Constraint("Horizontal", 64))
sketch2.addConstraint(Sketcher.Constraint("Vertical", 65))
sketch2.addConstraint(Sketcher.Constraint("Horizontal", 66))
sketch2.addConstraint(Sketcher.Constraint("Vertical", 67))
sketch2.addConstraint(Sketcher.Constraint("Horizontal", 68))
sketch2.addConstraint(Sketcher.Constraint("Vertical", 69))
sketch2.addConstraint(Sketcher.Constraint("Horizontal", 70))
sketch2.addConstraint(Sketcher.Constraint("Vertical", 71))
sketch2.addConstraint(Sketcher.Constraint("Horizontal", 72))
sketch2.addConstraint(Sketcher.Constraint("Vertical", 73))
sketch2.addConstraint(Sketcher.Constraint("Horizontal", 74))
sketch2.addConstraint(Sketcher.Constraint("Vertical", 75))
sketch2.addConstraint(Sketcher.Constraint("Horizontal", 76))
sketch2.addConstraint(Sketcher.Constraint("Vertical", 77))
sketch2.addConstraint(Sketcher.Constraint("Horizontal", 78))
sketch2.addConstraint(Sketcher.Constraint("Vertical", 79))
sketch2.addConstraint(Sketcher.Constraint("Horizontal", 80))
sketch2.addConstraint(Sketcher.Constraint("Vertical", 81))
sketch2.addConstraint(Sketcher.Constraint("Horizontal", 82))
sketch2.addConstraint(Sketcher.Constraint("Vertical", 83))
sketch2.addConstraint(Sketcher.Constraint("Horizontal", 84))
sketch2.addConstraint(Sketcher.Constraint("Vertical", 85))
sketch2.addConstraint(Sketcher.Constraint("Horizontal", 86))
sketch2.addConstraint(Sketcher.Constraint("Vertical", 87))
sketch2.addConstraint(Sketcher.Constraint("PointOnObject", 2, 2, -2))
sketch2.addConstraint(Sketcher.Constraint("PointOnObject", 6, 2, -2))
sketch2.addConstraint(Sketcher.Constraint("PointOnObject", 10, 2, -2))
sketch2.addConstraint(Sketcher.Constraint("PointOnObject", 14, 2, -2))
sketch2.addConstraint(Sketcher.Constraint("PointOnObject", 18, 2, -2))
sketch2.addConstraint(Sketcher.Constraint("PointOnObject", 22, 2, -2))
sketch2.addConstraint(Sketcher.Constraint("Horizontal", 26, 2, 29, 2))
sketch2.addConstraint(Sketcher.Constraint("Horizontal", 28, 2, 31, 2))
sketch2.addConstraint(Sketcher.Constraint("Horizontal", 30, 2, 33, 2))
sketch2.addConstraint(Sketcher.Constraint("Horizontal", 32, 2, 35, 2))
sketch2.addConstraint(Sketcher.Constraint("Horizontal", 34, 2, 37, 2))
sketch2.addConstraint(Sketcher.Constraint("Horizontal", 36, 2, 39, 2))
sketch2.addConstraint(Sketcher.Constraint("Horizontal", 38, 2, 41, 2))
sketch2.addConstraint(Sketcher.Constraint("Horizontal", 40, 2, 43, 2))
sketch2.addConstraint(Sketcher.Constraint("Horizontal", 42, 2, 45, 2))
sketch2.addConstraint(Sketcher.Constraint("Horizontal", 44, 2, 47, 2))
sketch2.addConstraint(Sketcher.Constraint("Horizontal", 46, 2, 49, 2))
sketch2.addConstraint(Sketcher.Constraint("Horizontal", 48, 2, 51, 2))
sketch2.addConstraint(Sketcher.Constraint("Horizontal", 50, 2, 53, 2))
sketch2.addConstraint(Sketcher.Constraint("Horizontal", 52, 2, 55, 2))
sketch2.addConstraint(Sketcher.Constraint("Horizontal", 54, 2, 57, 2))
sketch2.addConstraint(Sketcher.Constraint("Horizontal", 24, 2, 59, 2))
sketch2.addConstraint(Sketcher.Constraint("Horizontal", 22, 2, 61, 2))
sketch2.addConstraint(Sketcher.Constraint("Horizontal", 20, 2, 63, 2))
sketch2.addConstraint(Sketcher.Constraint("Horizontal", 18, 2, 65, 2))
sketch2.addConstraint(Sketcher.Constraint("Horizontal", 16, 2, 67, 2))
sketch2.addConstraint(Sketcher.Constraint("Horizontal", 14, 2, 69, 2))
sketch2.addConstraint(Sketcher.Constraint("Horizontal", 12, 2, 71, 2))
sketch2.addConstraint(Sketcher.Constraint("Horizontal", 10, 2, 73, 2))
sketch2.addConstraint(Sketcher.Constraint("Horizontal", 8, 2, 75, 2))
sketch2.addConstraint(Sketcher.Constraint("Horizontal", 6, 2, 77, 2))
sketch2.addConstraint(Sketcher.Constraint("Horizontal", 4, 2, 79, 2))
sketch2.addConstraint(Sketcher.Constraint("Horizontal", 2, 2, 81, 2))
sketch2.addConstraint(Sketcher.Constraint("Vertical", 1, 2, 4, 2))
sketch2.addConstraint(Sketcher.Constraint("Vertical", 5, 2, 8, 2))
sketch2.addConstraint(Sketcher.Constraint("Vertical", 9, 2, 12, 2))
sketch2.addConstraint(Sketcher.Constraint("Vertical", 13, 2, 16, 2))
sketch2.addConstraint(Sketcher.Constraint("Vertical", 17, 2, 20, 2))
sketch2.addConstraint(Sketcher.Constraint("Vertical", 21, 2, 24, 2))
sketch2.addConstraint(Sketcher.Constraint("Vertical", 59, 2, 62, 2))
sketch2.addConstraint(Sketcher.Constraint("Vertical", 61, 2, 64, 2))
sketch2.addConstraint(Sketcher.Constraint("Vertical", 63, 2, 66, 2))
sketch2.addConstraint(Sketcher.Constraint("Vertical", 65, 2, 68, 2))
sketch2.addConstraint(Sketcher.Constraint("Vertical", 67, 2, 70, 2))
sketch2.addConstraint(Sketcher.Constraint("Vertical", 69, 2, 72, 2))
sketch2.addConstraint(Sketcher.Constraint("Vertical", 71, 2, 74, 2))
sketch2.addConstraint(Sketcher.Constraint("Vertical", 73, 2, 76, 2))
sketch2.addConstraint(Sketcher.Constraint("Vertical", 75, 2, 78, 2))
sketch2.addConstraint(Sketcher.Constraint("Vertical", 77, 2, 80, 2))
sketch2.addConstraint(Sketcher.Constraint("Vertical", 79, 2, 82, 2))
sketch2.addConstraint(Sketcher.Constraint("Equal", 28, 30))
sketch2.addConstraint(Sketcher.Constraint("Equal", 30, 32))
sketch2.addConstraint(Sketcher.Constraint("Equal", 32, 34))
sketch2.addConstraint(Sketcher.Constraint("Equal", 34, 36))
sketch2.addConstraint(Sketcher.Constraint("Equal", 36, 38))
sketch2.addConstraint(Sketcher.Constraint("Equal", 38, 40))
sketch2.addConstraint(Sketcher.Constraint("Equal", 40, 42))
sketch2.addConstraint(Sketcher.Constraint("Equal", 42, 44))
sketch2.addConstraint(Sketcher.Constraint("Equal", 44, 46))
sketch2.addConstraint(Sketcher.Constraint("Equal", 46, 48))
sketch2.addConstraint(Sketcher.Constraint("Equal", 48, 50))
sketch2.addConstraint(Sketcher.Constraint("Equal", 50, 52))
sketch2.addConstraint(Sketcher.Constraint("Equal", 52, 54))
sketch2.addConstraint(Sketcher.Constraint("Equal", 54, 56))
sketch2.addConstraint(Sketcher.Constraint("Equal", 26, 58))
sketch2.addConstraint(Sketcher.Constraint("Equal", 24, 60))
sketch2.addConstraint(Sketcher.Constraint("Equal", 56, 1))
sketch2.addConstraint(Sketcher.Constraint("Equal", 1, 3))
sketch2.addConstraint(Sketcher.Constraint("Equal", 3, 5))
sketch2.addConstraint(Sketcher.Constraint("Equal", 5, 7))
sketch2.addConstraint(Sketcher.Constraint("Equal", 7, 9))
sketch2.addConstraint(Sketcher.Constraint("Equal", 9, 11))
sketch2.addConstraint(Sketcher.Constraint("Equal", 11, 13))
sketch2.addConstraint(Sketcher.Constraint("Equal", 13, 15))
sketch2.addConstraint(Sketcher.Constraint("Equal", 15, 17))
sketch2.addConstraint(Sketcher.Constraint("Equal", 17, 19))
sketch2.addConstraint(Sketcher.Constraint("Equal", 19, 21))
sketch2.addConstraint(Sketcher.Constraint("Equal", 21, 23))
sketch2.addConstraint(Sketcher.Constraint("Equal", 82, 27))
sketch2.addConstraint(Sketcher.Constraint("DistanceX", 28, 1, 28, 2, Q("0.5 in")))
sketch2.addConstraint(Sketcher.Constraint("DistanceY", 25, 2, -1, 1, Q("9 in")))
sketch2.addConstraint(Sketcher.Constraint("DistanceX", -1, 1, 60, 2, Q("9 in")))
sketch2.addConstraint(Sketcher.Constraint("DistanceY", 85, 2, -1, 1, Q("5 in")))
sketch2.addConstraint(Sketcher.Constraint("DistanceX", 0, 2, 0, 1, Q("8.24 in")))
sketch2.addConstraint(Sketcher.Constraint("DistanceX", 84, 2, 84, 1, Q("7.44 in")))
sketch2.addConstraint(Sketcher.Constraint("DistanceY", 25, 2, 25, 1, Q("0.75 in")))
sketch2.addConstraint(Sketcher.Constraint("DistanceY", 85, 1, 85, 2, Q("3.22 in")))
sketch2.addConstraint(Sketcher.Constraint("DistanceX", -1, 1, 84, 2, Q("0.78 in")))
sketch2.setExpression("Constraints[255]", "Params.sketch2_width")
sketch2.setExpression("Constraints[259]", "Params.sketch2_width2")
sketch2.setExpression("Constraints[260]", "Params.sketch2_width3")
sketch2.setExpression("Constraints[261]", "Params.sketch2_height")
sketch2.setExpression("Constraints[262]", "Params.sketch2_height2")
pad2 = body2.newObject("PartDesign::Pad", "Pad001")
pad2.Profile = sketch2
pad2.setExpression("Length", "Params.pad2_length")

doc.recompute()
